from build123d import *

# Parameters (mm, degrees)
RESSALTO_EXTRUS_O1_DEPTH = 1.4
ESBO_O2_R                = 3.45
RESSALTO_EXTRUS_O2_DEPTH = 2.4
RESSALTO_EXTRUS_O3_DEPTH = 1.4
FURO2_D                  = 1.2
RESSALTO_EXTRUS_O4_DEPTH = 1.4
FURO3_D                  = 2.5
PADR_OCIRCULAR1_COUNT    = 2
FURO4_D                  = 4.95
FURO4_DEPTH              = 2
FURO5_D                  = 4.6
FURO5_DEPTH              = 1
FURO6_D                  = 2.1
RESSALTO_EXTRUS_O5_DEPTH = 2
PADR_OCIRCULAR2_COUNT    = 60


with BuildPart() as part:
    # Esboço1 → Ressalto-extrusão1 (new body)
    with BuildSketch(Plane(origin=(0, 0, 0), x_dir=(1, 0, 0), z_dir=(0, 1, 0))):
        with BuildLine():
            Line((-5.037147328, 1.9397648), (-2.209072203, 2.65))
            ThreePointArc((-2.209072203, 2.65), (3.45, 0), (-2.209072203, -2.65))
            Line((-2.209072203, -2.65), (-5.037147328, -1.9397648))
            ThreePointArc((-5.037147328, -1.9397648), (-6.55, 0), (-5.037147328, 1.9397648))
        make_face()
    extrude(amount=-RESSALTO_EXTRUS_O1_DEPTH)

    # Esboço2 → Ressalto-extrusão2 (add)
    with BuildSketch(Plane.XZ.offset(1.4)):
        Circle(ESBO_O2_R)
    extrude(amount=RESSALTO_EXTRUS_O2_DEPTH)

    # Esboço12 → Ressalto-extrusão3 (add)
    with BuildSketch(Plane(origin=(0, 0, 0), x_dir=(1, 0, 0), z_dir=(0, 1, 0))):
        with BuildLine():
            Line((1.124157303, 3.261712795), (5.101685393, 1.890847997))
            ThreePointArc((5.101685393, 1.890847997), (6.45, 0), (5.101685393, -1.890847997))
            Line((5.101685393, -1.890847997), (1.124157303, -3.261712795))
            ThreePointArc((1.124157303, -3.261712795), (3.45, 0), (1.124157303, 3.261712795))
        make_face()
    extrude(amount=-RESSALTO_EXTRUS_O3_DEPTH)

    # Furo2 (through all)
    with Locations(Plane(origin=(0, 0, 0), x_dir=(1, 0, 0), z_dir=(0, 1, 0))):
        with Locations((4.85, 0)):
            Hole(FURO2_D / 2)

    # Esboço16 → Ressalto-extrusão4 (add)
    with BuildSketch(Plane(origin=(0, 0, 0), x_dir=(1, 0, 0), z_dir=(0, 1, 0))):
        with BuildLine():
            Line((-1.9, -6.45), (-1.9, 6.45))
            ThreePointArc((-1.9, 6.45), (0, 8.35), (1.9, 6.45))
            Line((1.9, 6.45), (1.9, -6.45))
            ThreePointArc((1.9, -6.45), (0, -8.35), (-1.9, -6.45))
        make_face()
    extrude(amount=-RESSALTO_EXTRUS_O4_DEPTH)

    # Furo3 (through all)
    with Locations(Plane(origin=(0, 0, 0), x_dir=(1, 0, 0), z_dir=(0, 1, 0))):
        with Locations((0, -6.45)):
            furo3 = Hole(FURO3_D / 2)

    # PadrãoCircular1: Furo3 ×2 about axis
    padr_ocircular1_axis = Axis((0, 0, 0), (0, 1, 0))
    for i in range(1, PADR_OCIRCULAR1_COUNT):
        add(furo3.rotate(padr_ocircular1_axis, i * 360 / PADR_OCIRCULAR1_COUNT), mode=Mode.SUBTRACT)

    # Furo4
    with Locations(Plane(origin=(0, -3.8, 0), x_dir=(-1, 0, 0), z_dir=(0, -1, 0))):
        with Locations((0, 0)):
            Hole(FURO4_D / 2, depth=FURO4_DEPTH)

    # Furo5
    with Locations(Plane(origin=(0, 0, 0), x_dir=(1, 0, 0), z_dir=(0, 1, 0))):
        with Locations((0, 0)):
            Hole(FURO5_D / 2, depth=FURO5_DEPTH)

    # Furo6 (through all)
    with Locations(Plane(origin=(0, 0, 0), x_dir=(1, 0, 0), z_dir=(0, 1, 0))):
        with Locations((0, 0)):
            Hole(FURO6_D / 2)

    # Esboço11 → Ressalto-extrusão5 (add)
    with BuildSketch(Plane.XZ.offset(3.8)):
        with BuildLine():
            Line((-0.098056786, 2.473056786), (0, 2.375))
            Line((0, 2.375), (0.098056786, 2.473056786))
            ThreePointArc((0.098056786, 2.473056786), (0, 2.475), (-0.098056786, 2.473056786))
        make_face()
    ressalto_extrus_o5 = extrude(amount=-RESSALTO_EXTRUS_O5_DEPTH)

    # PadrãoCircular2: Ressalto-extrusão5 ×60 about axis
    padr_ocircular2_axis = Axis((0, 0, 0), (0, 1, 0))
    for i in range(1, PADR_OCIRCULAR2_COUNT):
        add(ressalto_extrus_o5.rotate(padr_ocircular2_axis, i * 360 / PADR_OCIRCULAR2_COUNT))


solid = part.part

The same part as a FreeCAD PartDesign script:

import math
import FreeCAD as App
import Part
import Sketcher

V = App.Vector
Q = App.Units.Quantity

doc = App.newDocument("Part")
body = doc.addObject("PartDesign::Body", "Body")

# Sketch on XZ plane
sketch1 = doc.addObject("Sketcher::SketchObject", "Sketch")
body.addObject(sketch1)
sketch1.AttachmentSupport = (doc.XZ_Plane, [""])
sketch1.MapMode = "FlatFace"
sketch1.addGeometry([
    Part.LineSegment(V(-2.2, -2.6, 0), V(-5, -1.9, 0)),
    Part.ArcOfCircle(Part.Circle(V(-4.5, 0, 0), V(0, 0, 1), 2), math.radians(104), math.radians(256)),
    Part.LineSegment(V(-5, 1.9, 0), V(-2.2, 2.6, 0)),
    Part.ArcOfCircle(Part.Circle(V(0, 0, 0), V(0, 0, 1), 3.5), math.radians(-130), math.radians(130)),
], False)
sketch1.addConstraint([
    Sketcher.Constraint("Tangent", 0, 2, 1, 2),
    Sketcher.Constraint("Tangent", 1, 1, 2, 1),
    Sketcher.Constraint("Coincident", 2, 2, 3, 2),
    Sketcher.Constraint("Coincident", 3, 1, 0, 1),
    Sketcher.Constraint("Coincident", 3, 3, -1, 1),
    Sketcher.Constraint("Symmetric", 0, 2, 1, 1, -1),
    Sketcher.Constraint("Radius", 1, Q("2 mm")),
    Sketcher.Constraint("Radius", 3, Q("3.45 mm")),
    Sketcher.Constraint("DistanceY", 3, 1, 2, 2, Q("5.3 mm")),
    Sketcher.Constraint("DistanceX", 1, 3, -1, 1, Q("4.55 mm")),
])
pad1 = doc.addObject("PartDesign::Pad", "Pad")
body.addObject(pad1)
pad1.Profile = sketch1
pad1.Length = 1.4

# Sketch on XZ plane
sketch2 = doc.addObject("Sketcher::SketchObject", "Sketch001")
body.addObject(sketch2)
sketch2.AttachmentSupport = (doc.XZ_Plane, [""])
sketch2.MapMode = "FlatFace"
sketch2.AttachmentOffset = App.Placement(V(0, 0, 1.4), App.Rotation())
sketch2.addGeometry(Part.Circle(V(0, 0, 0), V(0, 0, 1), 3.5), False)
sketch2.addConstraint([
    Sketcher.Constraint("Coincident", 0, 3, -1, 1),
    Sketcher.Constraint("Diameter", 0, Q("6.9 mm")),
])
pad2 = doc.addObject("PartDesign::Pad", "Pad001")
body.addObject(pad2)
pad2.Profile = sketch2
pad2.Length = 2.4

# Sketch on XZ plane
sketch3 = doc.addObject("Sketcher::SketchObject", "Sketch002")
body.addObject(sketch3)
sketch3.AttachmentSupport = (doc.XZ_Plane, [""])
sketch3.MapMode = "FlatFace"
sketch3.addGeometry([
    Part.LineSegment(V(5.1, -1.9, 0), V(1.1, -3.3, 0)),
    Part.ArcOfCircle(Part.Circle(V(0, 0, 0), V(0, 0, 1), 3.5), math.radians(-71), math.radians(71)),
    Part.LineSegment(V(1.1, 3.3, 0), V(5.1, 1.9, 0)),
    Part.ArcOfCircle(Part.Circle(V(4.5, 0, 0), V(0, 0, 1), 2), math.radians(-71), math.radians(71)),
], False)
sketch3.addConstraint([
    Sketcher.Constraint("Tangent", 0, 2, 1, 1),
    Sketcher.Constraint("Tangent", 1, 2, 2, 1),
    Sketcher.Constraint("Tangent", 2, 2, 3, 2),
    Sketcher.Constraint("Tangent", 3, 1, 0, 1),
    Sketcher.Constraint("Coincident", 1, 3, -1, 1),
    Sketcher.Constraint("PointOnObject", 3, 3, -1),
    Sketcher.Constraint("Radius", 3, Q("2 mm")),
    Sketcher.Constraint("Radius", 1, Q("3.45 mm")),
    Sketcher.Constraint("DistanceX", -1, 1, 3, 3, Q("4.45 mm")),
])
pad3 = doc.addObject("PartDesign::Pad", "Pad002")
body.addObject(pad3)
pad3.Profile = sketch3
pad3.Length = 1.4

# Sketch on XZ plane
sketch4 = doc.addObject("Sketcher::SketchObject", "Sketch003")
body.addObject(sketch4)
sketch4.AttachmentSupport = (doc.XZ_Plane, [""])
sketch4.MapMode = "FlatFace"
sketch4.addGeometry(Part.Circle(V(4.8, 0, 0), V(0, 0, 1), 0.6), False)
sketch4.addConstraint([
    Sketcher.Constraint("PointOnObject", 0, 3, -1),
    Sketcher.Constraint("Diameter", 0, Q("1.2 mm")),
    Sketcher.Constraint("DistanceX", -1, 1, 0, 3, Q("4.85 mm")),
])
doc.recompute()
hole = doc.addObject("PartDesign::Hole", "Hole")
body.addObject(hole)
hole.Profile = sketch4
hole.ThreadType = "None"
hole.Diameter = 1.2
hole.DepthType = "ThroughAll"
hole.Reversed = True

# Sketch on XZ plane
sketch5 = doc.addObject("Sketcher::SketchObject", "Sketch004")
body.addObject(sketch5)
sketch5.AttachmentSupport = (doc.XZ_Plane, [""])
sketch5.MapMode = "FlatFace"
sketch5.addGeometry([
    Part.LineSegment(V(-1.9, -6.5, 0), V(-1.9, 6.5, 0)),
    Part.ArcOfCircle(Part.Circle(V(0, 6.5, 0), V(0, 0, 1), 1.9), math.radians(0), math.radians(180)),
    Part.LineSegment(V(1.9, 6.5, 0), V(1.9, -6.5, 0)),
    Part.ArcOfCircle(Part.Circle(V(0, -6.5, 0), V(0, 0, 1), 1.9), math.radians(180), math.radians(360)),
], False)
sketch5.addConstraint([
    Sketcher.Constraint("Tangent", 0, 2, 1, 2),
    Sketcher.Constraint("Tangent", 1, 1, 2, 1),
    Sketcher.Constraint("Tangent", 2, 2, 3, 2),
    Sketcher.Constraint("Tangent", 3, 1, 0, 1),
    Sketcher.Constraint("Vertical", 0),
    Sketcher.Constraint("Vertical", 2),
    Sketcher.Constraint("Symmetric", 1, 3, 3, 3, -1, 1),
    Sketcher.Constraint("Radius", 1, Q("1.9 mm")),
    Sketcher.Constraint("DistanceY", 0, 1, 0, 2, Q("12.9 mm")),
])
pad4 = doc.addObject("PartDesign::Pad", "Pad003")
body.addObject(pad4)
pad4.Profile = sketch5
pad4.Length = 1.4

# Sketch on XZ plane
sketch6 = doc.addObject("Sketcher::SketchObject", "Sketch005")
body.addObject(sketch6)
sketch6.AttachmentSupport = (doc.XZ_Plane, [""])
sketch6.MapMode = "FlatFace"
sketch6.addGeometry(Part.Circle(V(0, 6.5, 0), V(0, 0, 1), 1.2), False)
sketch6.addConstraint([
    Sketcher.Constraint("PointOnObject", 0, 3, -2),
    Sketcher.Constraint("Diameter", 0, Q("2.5 mm")),
    Sketcher.Constraint("DistanceY", -1, 1, 0, 3, Q("6.45 mm")),
])
doc.recompute()
hole2 = doc.addObject("PartDesign::Hole", "Hole001")
body.addObject(hole2)
hole2.Profile = sketch6
hole2.ThreadType = "None"
hole2.Diameter = 2.5
hole2.DepthType = "ThroughAll"
hole2.Reversed = True
doc.recompute()

polarpattern = doc.addObject("PartDesign::PolarPattern", "PolarPattern")
body.addObject(polarpattern)
polarpattern.Originals = [hole2]
polarpattern.Axis = (doc.Y_Axis, [""])
polarpattern.Angle = 360
polarpattern.Occurrences = 2
body.Tip = polarpattern

# Sketch on XZ plane
sketch7 = doc.addObject("Sketcher::SketchObject", "Sketch006")
body.addObject(sketch7)
sketch7.AttachmentSupport = (doc.XZ_Plane, [""])
sketch7.MapMode = "FlatFace"
sketch7.AttachmentOffset = App.Placement(V(0, 0, 3.8), App.Rotation())
sketch7.addGeometry(Part.Circle(V(0, 0, 0), V(0, 0, 1), 2.5), False)
sketch7.addConstraint([
    Sketcher.Constraint("Coincident", 0, 3, -1, 1),
    Sketcher.Constraint("Diameter", 0, Q("4.95 mm")),
])
doc.recompute()
hole3 = doc.addObject("PartDesign::Hole", "Hole002")
body.addObject(hole3)
hole3.Profile = sketch7
hole3.ThreadType = "None"
hole3.Diameter = 4.95
hole3.DepthType = "Dimension"
hole3.Depth = 2
hole3.DrillPoint = "Flat"

# Sketch on XZ plane
sketch8 = doc.addObject("Sketcher::SketchObject", "Sketch007")
body.addObject(sketch8)
sketch8.AttachmentSupport = (doc.XZ_Plane, [""])
sketch8.MapMode = "FlatFace"
sketch8.addGeometry(Part.Circle(V(0, 0, 0), V(0, 0, 1), 2.3), False)
sketch8.addConstraint([
    Sketcher.Constraint("Coincident", 0, 3, -1, 1),
    Sketcher.Constraint("Diameter", 0, Q("4.6 mm")),
])
doc.recompute()
hole4 = doc.addObject("PartDesign::Hole", "Hole003")
body.addObject(hole4)
hole4.Profile = sketch8
hole4.ThreadType = "None"
hole4.Diameter = 4.6
hole4.DepthType = "Dimension"
hole4.Depth = 1
hole4.DrillPoint = "Flat"
hole4.Reversed = True

# Sketch on XZ plane
sketch9 = doc.addObject("Sketcher::SketchObject", "Sketch008")
body.addObject(sketch9)
sketch9.AttachmentSupport = (doc.XZ_Plane, [""])
sketch9.MapMode = "FlatFace"
sketch9.addGeometry(Part.Circle(V(0, 0, 0), V(0, 0, 1), 1.1), False)
sketch9.addConstraint([
    Sketcher.Constraint("Coincident", 0, 3, -1, 1),
    Sketcher.Constraint("Diameter", 0, Q("2.1 mm")),
])
doc.recompute()
hole5 = doc.addObject("PartDesign::Hole", "Hole004")
body.addObject(hole5)
hole5.Profile = sketch9
hole5.ThreadType = "None"
hole5.Diameter = 2.1
hole5.DepthType = "ThroughAll"
hole5.Reversed = True

# Sketch on XZ plane
sketch10 = doc.addObject("Sketcher::SketchObject", "Sketch009")
body.addObject(sketch10)
sketch10.AttachmentSupport = (doc.XZ_Plane, [""])
sketch10.MapMode = "FlatFace"
sketch10.AttachmentOffset = App.Placement(V(0, 0, 3.8), App.Rotation())
sketch10.addGeometry([
    Part.LineSegment(V(-0.1, 2.47, 0), V(0, 2.38, 0)),
    Part.LineSegment(V(0, 2.38, 0), V(0.1, 2.47, 0)),
    Part.ArcOfCircle(Part.Circle(V(0, 0, 0), V(0, 0, 1), 2.48), math.radians(87.73), math.radians(92.27)),
], False)
sketch10.addConstraint([
    Sketcher.Constraint("Coincident", 0, 2, 1, 1),
    Sketcher.Constraint("Coincident", 1, 2, 2, 1),
    Sketcher.Constraint("Coincident", 2, 2, 0, 1),
    Sketcher.Constraint("Coincident", 2, 3, -1, 1),
    Sketcher.Constraint("PointOnObject", 0, 2, -2),
    Sketcher.Constraint("Perpendicular", 0, 1),
    Sketcher.Constraint("Horizontal", 1, 2, 2, 2),
    Sketcher.Constraint("Radius", 2, Q("2.475 mm")),
    Sketcher.Constraint("DistanceY", -1, 1, 0, 2, Q("2.375 mm")),
])
pad5 = doc.addObject("PartDesign::Pad", "Pad004")
body.addObject(pad5)
pad5.Profile = sketch10
pad5.Length = 2
pad5.Reversed = True
doc.recompute()

polarpattern2 = doc.addObject("PartDesign::PolarPattern", "PolarPattern001")
body.addObject(polarpattern2)
polarpattern2.Originals = [pad5]
polarpattern2.Axis = (doc.Y_Axis, [""])
polarpattern2.Angle = 360
polarpattern2.Occurrences = 60
body.Tip = polarpattern2

doc.recompute()
